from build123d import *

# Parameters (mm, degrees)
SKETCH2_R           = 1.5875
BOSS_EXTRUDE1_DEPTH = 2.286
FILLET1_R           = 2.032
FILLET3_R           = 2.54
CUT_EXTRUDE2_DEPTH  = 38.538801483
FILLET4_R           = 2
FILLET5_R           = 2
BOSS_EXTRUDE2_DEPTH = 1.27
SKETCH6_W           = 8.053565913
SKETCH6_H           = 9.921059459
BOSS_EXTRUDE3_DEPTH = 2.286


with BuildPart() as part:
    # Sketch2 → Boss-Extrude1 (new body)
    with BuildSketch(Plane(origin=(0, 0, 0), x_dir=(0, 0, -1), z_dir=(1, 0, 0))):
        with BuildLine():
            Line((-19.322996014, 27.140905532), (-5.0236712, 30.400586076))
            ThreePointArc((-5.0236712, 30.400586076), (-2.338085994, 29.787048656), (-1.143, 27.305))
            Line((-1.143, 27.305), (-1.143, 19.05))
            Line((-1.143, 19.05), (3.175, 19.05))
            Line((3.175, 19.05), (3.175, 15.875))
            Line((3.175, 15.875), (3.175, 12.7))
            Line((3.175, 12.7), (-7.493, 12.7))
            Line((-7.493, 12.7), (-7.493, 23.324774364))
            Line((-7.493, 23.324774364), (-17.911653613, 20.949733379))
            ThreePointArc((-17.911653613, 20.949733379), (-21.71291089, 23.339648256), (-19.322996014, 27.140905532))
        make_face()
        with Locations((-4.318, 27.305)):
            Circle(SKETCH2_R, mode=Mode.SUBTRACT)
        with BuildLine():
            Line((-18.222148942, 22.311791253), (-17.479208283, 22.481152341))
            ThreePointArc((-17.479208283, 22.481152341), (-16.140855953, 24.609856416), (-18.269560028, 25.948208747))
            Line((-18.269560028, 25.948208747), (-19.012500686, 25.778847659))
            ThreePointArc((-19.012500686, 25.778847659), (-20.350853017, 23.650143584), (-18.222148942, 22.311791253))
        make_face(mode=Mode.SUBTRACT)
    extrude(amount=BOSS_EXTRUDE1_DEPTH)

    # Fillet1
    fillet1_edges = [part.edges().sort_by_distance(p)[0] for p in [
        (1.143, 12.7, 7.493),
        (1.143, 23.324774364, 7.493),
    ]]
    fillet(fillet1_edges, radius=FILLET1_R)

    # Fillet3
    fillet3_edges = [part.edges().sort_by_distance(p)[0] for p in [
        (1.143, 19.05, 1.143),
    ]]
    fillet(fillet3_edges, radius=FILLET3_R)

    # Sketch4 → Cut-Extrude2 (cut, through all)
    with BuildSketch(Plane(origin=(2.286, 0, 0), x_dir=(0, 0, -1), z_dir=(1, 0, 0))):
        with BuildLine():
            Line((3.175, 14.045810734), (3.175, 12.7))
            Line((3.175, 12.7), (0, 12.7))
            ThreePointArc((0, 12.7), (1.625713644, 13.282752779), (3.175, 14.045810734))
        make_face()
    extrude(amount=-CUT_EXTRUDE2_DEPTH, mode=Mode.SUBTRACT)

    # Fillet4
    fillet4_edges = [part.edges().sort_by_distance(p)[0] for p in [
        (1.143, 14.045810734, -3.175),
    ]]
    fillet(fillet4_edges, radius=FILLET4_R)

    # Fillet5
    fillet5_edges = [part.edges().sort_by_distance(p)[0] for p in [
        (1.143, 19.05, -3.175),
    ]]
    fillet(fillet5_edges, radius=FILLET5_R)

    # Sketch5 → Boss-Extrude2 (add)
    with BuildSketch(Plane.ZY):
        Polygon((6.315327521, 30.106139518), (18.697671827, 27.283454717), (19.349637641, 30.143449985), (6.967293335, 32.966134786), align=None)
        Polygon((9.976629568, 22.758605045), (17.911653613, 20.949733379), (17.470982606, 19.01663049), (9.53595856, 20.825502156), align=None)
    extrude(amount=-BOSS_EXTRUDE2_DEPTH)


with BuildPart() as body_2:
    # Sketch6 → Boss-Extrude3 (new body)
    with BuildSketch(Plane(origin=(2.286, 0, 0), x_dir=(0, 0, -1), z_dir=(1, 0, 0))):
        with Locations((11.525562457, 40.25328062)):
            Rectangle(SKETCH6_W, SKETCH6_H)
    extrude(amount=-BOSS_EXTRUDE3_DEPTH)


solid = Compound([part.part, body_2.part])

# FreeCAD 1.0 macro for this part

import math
import FreeCAD as App
import Part
import Sketcher
from FreeCAD import Vector
Q = App.Units.Quantity


def edges_at(feature, points):
    """Names of the edges that pass closest to the given points."""
    edges = feature.Shape.Edges
    near = lambda p: min(range(len(edges)), key=lambda i: edges[i].distToShape(Part.Vertex(*p))[0])
    return sorted({f"Edge{near(p) + 1}" for p in points})


def add_polygon(sketch, points):
    """Adds a closed chain of lines whose ends are joined by coincident constraints."""
    first, n = sketch.GeometryCount, len(points)
    for a, b in zip(points, points[1:] + points[:1]):
        sketch.addGeometry(Part.LineSegment(App.Vector(*a, 0), App.Vector(*b, 0)), False)
    for i in range(n):
        sketch.addConstraint(Sketcher.Constraint("Coincident", first + i, 2, first + (i + 1) % n, 1))

doc = App.newDocument("Part")
body = doc.addObject("PartDesign::Body", "Body")

# Sketch on YZ plane
sketch1 = body.newObject("Sketcher::SketchObject", "Sketch")
sketch1.AttachmentSupport = (doc.getObject("YZ_Plane"), [""])
sketch1.MapMode = "FlatFace"
sketch1.addGeometry([
    Part.LineSegment(Vector(30.400586, 5.023671, 0), Vector(27.140906, 19.322996, 0)),  # 0
    Part.ArcOfCircle(Part.Circle(Vector(24.045319, 18.617325, 0), Vector(0, 0, 1), 3.175), math.radians(12.841729), math.radians(192.841729)),  # 1
    Part.LineSegment(Vector(20.949733, 17.911654, 0), Vector(23.324774, 7.493, 0)),  # 2
    Part.LineSegment(Vector(23.324774, 7.493, 0), Vector(12.7, 7.493, 0)),  # 3
    Part.LineSegment(Vector(12.7, 7.493, 0), Vector(12.7, -3.175, 0)),  # 4
    Part.LineSegment(Vector(12.7, -3.175, 0), Vector(19.05, -3.175, 0)),  # 5
    Part.LineSegment(Vector(19.05, -3.175, 0), Vector(19.05, 1.143, 0)),  # 6
    Part.LineSegment(Vector(19.05, 1.143, 0), Vector(27.305, 1.143, 0)),  # 7
    Part.ArcOfCircle(Part.Circle(Vector(27.305, 4.318, 0), Vector(0, 0, 1), 3.175), math.radians(-90), math.radians(12.841729)),  # 8
    Part.ArcOfCircle(Part.Circle(Vector(24.045319, 18.617325, 0), Vector(0, 0, 1), 1.778), math.radians(12.841729), math.radians(192.841729)),  # 9
    Part.LineSegment(Vector(25.778848, 19.012501, 0), Vector(25.948209, 18.26956, 0)),  # 10
    Part.ArcOfCircle(Part.Circle(Vector(24.214681, 17.874384, 0), Vector(0, 0, 1), 1.778), math.radians(-167.158271), math.radians(12.841729)),  # 11
    Part.LineSegment(Vector(22.481152, 17.479208, 0), Vector(22.311791, 18.222149, 0)),  # 12
    Part.Circle(Vector(27.305, 4.318, 0), Vector(0, 0, 1), 1.5875),  # 13
], False)
sketch1.addConstraint([
    Sketcher.Constraint("Tangent", 0, 2, 1, 1),
    Sketcher.Constraint("Tangent", 1, 2, 2, 1),
    Sketcher.Constraint("Coincident", 2, 2, 3, 1),
    Sketcher.Constraint("Coincident", 3, 2, 4, 1),
    Sketcher.Constraint("Coincident", 4, 2, 5, 1),
    Sketcher.Constraint("Coincident", 5, 2, 6, 1),
    Sketcher.Constraint("Coincident", 6, 2, 7, 1),
    Sketcher.Constraint("Tangent", 7, 2, 8, 1),
    Sketcher.Constraint("Tangent", 8, 2, 0, 1),
    Sketcher.Constraint("Tangent", 9, 1, 10, 1),
    Sketcher.Constraint("Tangent", 10, 2, 11, 2),
    Sketcher.Constraint("Tangent", 11, 1, 12, 1),
    Sketcher.Constraint("Tangent", 12, 2, 9, 2),
    Sketcher.Constraint("Horizontal", 3),
    Sketcher.Constraint("Vertical", 4),
    Sketcher.Constraint("Horizontal", 5),
    Sketcher.Constraint("Vertical", 6),
    Sketcher.Constraint("Horizontal", 7),
    Sketcher.Constraint("Coincident", 9, 3, 1, 3),
    Sketcher.Constraint("Coincident", 13, 3, 8, 3),
    Sketcher.Constraint("Equal", 1, 8),
    Sketcher.Constraint("Equal", 9, 11),
    Sketcher.Constraint("Parallel", 0, 2),
    Sketcher.Constraint("Parallel", 2, 10),
    Sketcher.Constraint("Radius", 9, Q("0.07 in")),
    Sketcher.Constraint("Diameter", 13, Q("0.125 in")),
    Sketcher.Constraint("Radius", 1, Q("0.125 in")),
    Sketcher.Constraint("DistanceX", 5, 1, 5, 2, Q("0.25 in")),
    Sketcher.Constraint("DistanceY", 4, 2, 4, 1, Q("0.42 in")),
    Sketcher.Constraint("DistanceY", 6, 1, 6, 2, Q("0.17 in")),
    Sketcher.Constraint("DistanceX", -1, 1, 3, 2, Q("0.5 in")),
    Sketcher.Constraint("Distance", 10, Q("0.03 in")),
    Sketcher.Constraint("DistanceX", 7, 1, 7, 2, Q("0.325 in")),
    Sketcher.Constraint("DistanceY", -1, 1, 8, 3, Q("0.17 in")),
    Sketcher.Constraint("DistanceY", -1, 1, 9, 1, Q("19.012501 mm")),
    Sketcher.Constraint("Distance", 0, Q("14.666159 mm")),
])
pad1 = body.newObject("PartDesign::Pad", "Pad")
pad1.Profile = sketch1
pad1.Length = Q("0.09 in")
doc.recompute()

fillet = body.newObject("PartDesign::Fillet", "Fillet")
fillet.Base = (pad1, edges_at(pad1, [(1.143, 12.7, 7.493), (1.143, 23.325, 7.493)]))
fillet.Radius = Q("0.08 in")
doc.recompute()

fillet2 = body.newObject("PartDesign::Fillet", "Fillet001")
fillet2.Base = (fillet, edges_at(fillet, [(1.143, 19.05, 1.143)]))
fillet2.Radius = Q("0.1 in")

# Sketch on YZ plane
sketch2 = body.newObject("Sketcher::SketchObject", "Sketch001")
sketch2.AttachmentSupport = (doc.getObject("YZ_Plane"), [""])
sketch2.MapMode = "FlatFace"
sketch2.AttachmentOffset = App.Placement(Vector(0, 0, 0.09 * 25.4), App.Rotation())
sketch2.addGeometry([
    Part.LineSegment(Vector(12.7, -3.175, 0), Vector(14.045811, -3.175, 0)),
    Part.ArcOfCircle(Part.Circle(Vector(27.305, 4.318, 0), Vector(0, 0, 1), 15.229942), math.radians(-163.529572), math.radians(-150.528448)),
    Part.LineSegment(Vector(12.7, 0, 0), Vector(12.7, -3.175, 0)),
], False)
sketch2.addConstraint([
    Sketcher.Constraint("Coincident", 0, 2, 1, 2),
    Sketcher.Constraint("Coincident", 1, 1, 2, 1),
    Sketcher.Constraint("Coincident", 2, 2, 0, 1),
    Sketcher.Constraint("Horizontal", 0),
    Sketcher.Constraint("Vertical", 2),
    Sketcher.Constraint("PointOnObject", 1, 1, -1),
    Sketcher.Constraint("DistanceX", -1, 1, 1, 1, Q("0.5 in")),
    Sketcher.Constraint("DistanceY", 2, 2, 2, 1, Q("0.125 in")),
    Sketcher.Constraint("DistanceY", -1, 1, 1, 3, Q("0.17 in")),
    Sketcher.Constraint("DistanceX", -1, 1, 1, 3, Q("1.075 in")),
])
pocket1 = body.newObject("PartDesign::Pocket", "Pocket")
pocket1.Profile = sketch2
pocket1.Type = "ThroughAll"
doc.recompute()

fillet3 = body.newObject("PartDesign::Fillet", "Fillet002")
fillet3.Base = (pocket1, edges_at(pocket1, [(1.143, 14.046, -3.175)]))
fillet3.Radius = 2
doc.recompute()

fillet4 = body.newObject("PartDesign::Fillet", "Fillet003")
fillet4.Base = (fillet3, edges_at(fillet3, [(1.143, 19.05, -3.175)]))
fillet4.Radius = 2

# Sketch on YZ plane
sketch3 = body.newObject("Sketcher::SketchObject", "Sketch002")
sketch3.AttachmentSupport = (doc.getObject("YZ_Plane"), [""])
sketch3.MapMode = "FlatFace"
add_polygon(sketch3, [(30.10614, 6.315328), (27.283455, 18.697672), (30.14345, 19.349638), (32.966135, 6.967293)])  # lines 0-3
add_polygon(sketch3, [(20.949733, 17.911654), (22.758605, 9.97663), (20.825502, 9.535959), (19.01663, 17.470983)])  # lines 4-7
sketch3.addConstraint([
    Sketcher.Constraint("Perpendicular", 0, 1),
    Sketcher.Constraint("Perpendicular", 1, 2),
    Sketcher.Constraint("Perpendicular", 2, 3),
    Sketcher.Constraint("Perpendicular", 3, 4),
    Sketcher.Constraint("Perpendicular", 4, 5),
    Sketcher.Constraint("Perpendicular", 5, 6),
    Sketcher.Constraint("Perpendicular", 6, 7),
    Sketcher.Constraint("Distance", 0, Q("0.5 in")),
    Sketcher.Constraint("Distance", 4, Q("8.138589 mm")),
    Sketcher.Constraint("DistanceY", -1, 1, 0, 2, Q("18.697672 mm")),
    Sketcher.Constraint("DistanceX", -1, 1, 1, 2, Q("30.14345 mm")),
    Sketcher.Constraint("DistanceX", -1, 1, 3, 2, Q("30.10614 mm")),
    Sketcher.Constraint("DistanceY", -1, 1, 4, 2, Q("9.97663 mm")),
    Sketcher.Constraint("DistanceY", -1, 1, 5, 2, Q("9.535959 mm")),
    Sketcher.Constraint("DistanceX", -1, 1, 6, 2, Q("19.01663 mm")),
    Sketcher.Constraint("DistanceX", 0, 2, 2, 2, Q("5.68268 mm")),
])
pad2 = body.newObject("PartDesign::Pad", "Pad001")
pad2.Profile = sketch3
pad2.Length = Q("0.05 in")
body2 = doc.addObject("PartDesign::Body", "Body001")

# Sketch on YZ plane
sketch4 = body2.newObject("Sketcher::SketchObject", "Sketch003")
sketch4.AttachmentSupport = (doc.getObject("YZ_Plane001"), [""])
sketch4.MapMode = "FlatFace"
sketch4.AttachmentOffset = App.Placement(Vector(0, 0, 0.09 * 25.4), App.Rotation())
add_polygon(sketch4, [(45.21381, -7.49878), (35.292751, -7.49878), (35.292751, -15.552345), (45.21381, -15.552345)])  # lines 0-3
sketch4.addConstraint([
    Sketcher.Constraint("Horizontal", 0),
    Sketcher.Constraint("Vertical", 1),
    Sketcher.Constraint("Horizontal", 2),
    Sketcher.Constraint("Vertical", 3),
    Sketcher.Constraint("DistanceX", 0, 2, 0, 1, Q("9.921059 mm")),
    Sketcher.Constraint("DistanceY", 1, 2, 1, 1, Q("8.053566 mm")),
    Sketcher.Constraint("DistanceX", -1, 1, 0, 2, Q("35.292751 mm")),
    Sketcher.Constraint("DistanceY", 0, 2, -1, 1, Q("7.49878 mm")),
])
pad3 = body2.newObject("PartDesign::Pad", "Pad002")
pad3.Profile = sketch4
pad3.Length = Q("0.09 in")
pad3.Reversed = True

doc.recompute()
